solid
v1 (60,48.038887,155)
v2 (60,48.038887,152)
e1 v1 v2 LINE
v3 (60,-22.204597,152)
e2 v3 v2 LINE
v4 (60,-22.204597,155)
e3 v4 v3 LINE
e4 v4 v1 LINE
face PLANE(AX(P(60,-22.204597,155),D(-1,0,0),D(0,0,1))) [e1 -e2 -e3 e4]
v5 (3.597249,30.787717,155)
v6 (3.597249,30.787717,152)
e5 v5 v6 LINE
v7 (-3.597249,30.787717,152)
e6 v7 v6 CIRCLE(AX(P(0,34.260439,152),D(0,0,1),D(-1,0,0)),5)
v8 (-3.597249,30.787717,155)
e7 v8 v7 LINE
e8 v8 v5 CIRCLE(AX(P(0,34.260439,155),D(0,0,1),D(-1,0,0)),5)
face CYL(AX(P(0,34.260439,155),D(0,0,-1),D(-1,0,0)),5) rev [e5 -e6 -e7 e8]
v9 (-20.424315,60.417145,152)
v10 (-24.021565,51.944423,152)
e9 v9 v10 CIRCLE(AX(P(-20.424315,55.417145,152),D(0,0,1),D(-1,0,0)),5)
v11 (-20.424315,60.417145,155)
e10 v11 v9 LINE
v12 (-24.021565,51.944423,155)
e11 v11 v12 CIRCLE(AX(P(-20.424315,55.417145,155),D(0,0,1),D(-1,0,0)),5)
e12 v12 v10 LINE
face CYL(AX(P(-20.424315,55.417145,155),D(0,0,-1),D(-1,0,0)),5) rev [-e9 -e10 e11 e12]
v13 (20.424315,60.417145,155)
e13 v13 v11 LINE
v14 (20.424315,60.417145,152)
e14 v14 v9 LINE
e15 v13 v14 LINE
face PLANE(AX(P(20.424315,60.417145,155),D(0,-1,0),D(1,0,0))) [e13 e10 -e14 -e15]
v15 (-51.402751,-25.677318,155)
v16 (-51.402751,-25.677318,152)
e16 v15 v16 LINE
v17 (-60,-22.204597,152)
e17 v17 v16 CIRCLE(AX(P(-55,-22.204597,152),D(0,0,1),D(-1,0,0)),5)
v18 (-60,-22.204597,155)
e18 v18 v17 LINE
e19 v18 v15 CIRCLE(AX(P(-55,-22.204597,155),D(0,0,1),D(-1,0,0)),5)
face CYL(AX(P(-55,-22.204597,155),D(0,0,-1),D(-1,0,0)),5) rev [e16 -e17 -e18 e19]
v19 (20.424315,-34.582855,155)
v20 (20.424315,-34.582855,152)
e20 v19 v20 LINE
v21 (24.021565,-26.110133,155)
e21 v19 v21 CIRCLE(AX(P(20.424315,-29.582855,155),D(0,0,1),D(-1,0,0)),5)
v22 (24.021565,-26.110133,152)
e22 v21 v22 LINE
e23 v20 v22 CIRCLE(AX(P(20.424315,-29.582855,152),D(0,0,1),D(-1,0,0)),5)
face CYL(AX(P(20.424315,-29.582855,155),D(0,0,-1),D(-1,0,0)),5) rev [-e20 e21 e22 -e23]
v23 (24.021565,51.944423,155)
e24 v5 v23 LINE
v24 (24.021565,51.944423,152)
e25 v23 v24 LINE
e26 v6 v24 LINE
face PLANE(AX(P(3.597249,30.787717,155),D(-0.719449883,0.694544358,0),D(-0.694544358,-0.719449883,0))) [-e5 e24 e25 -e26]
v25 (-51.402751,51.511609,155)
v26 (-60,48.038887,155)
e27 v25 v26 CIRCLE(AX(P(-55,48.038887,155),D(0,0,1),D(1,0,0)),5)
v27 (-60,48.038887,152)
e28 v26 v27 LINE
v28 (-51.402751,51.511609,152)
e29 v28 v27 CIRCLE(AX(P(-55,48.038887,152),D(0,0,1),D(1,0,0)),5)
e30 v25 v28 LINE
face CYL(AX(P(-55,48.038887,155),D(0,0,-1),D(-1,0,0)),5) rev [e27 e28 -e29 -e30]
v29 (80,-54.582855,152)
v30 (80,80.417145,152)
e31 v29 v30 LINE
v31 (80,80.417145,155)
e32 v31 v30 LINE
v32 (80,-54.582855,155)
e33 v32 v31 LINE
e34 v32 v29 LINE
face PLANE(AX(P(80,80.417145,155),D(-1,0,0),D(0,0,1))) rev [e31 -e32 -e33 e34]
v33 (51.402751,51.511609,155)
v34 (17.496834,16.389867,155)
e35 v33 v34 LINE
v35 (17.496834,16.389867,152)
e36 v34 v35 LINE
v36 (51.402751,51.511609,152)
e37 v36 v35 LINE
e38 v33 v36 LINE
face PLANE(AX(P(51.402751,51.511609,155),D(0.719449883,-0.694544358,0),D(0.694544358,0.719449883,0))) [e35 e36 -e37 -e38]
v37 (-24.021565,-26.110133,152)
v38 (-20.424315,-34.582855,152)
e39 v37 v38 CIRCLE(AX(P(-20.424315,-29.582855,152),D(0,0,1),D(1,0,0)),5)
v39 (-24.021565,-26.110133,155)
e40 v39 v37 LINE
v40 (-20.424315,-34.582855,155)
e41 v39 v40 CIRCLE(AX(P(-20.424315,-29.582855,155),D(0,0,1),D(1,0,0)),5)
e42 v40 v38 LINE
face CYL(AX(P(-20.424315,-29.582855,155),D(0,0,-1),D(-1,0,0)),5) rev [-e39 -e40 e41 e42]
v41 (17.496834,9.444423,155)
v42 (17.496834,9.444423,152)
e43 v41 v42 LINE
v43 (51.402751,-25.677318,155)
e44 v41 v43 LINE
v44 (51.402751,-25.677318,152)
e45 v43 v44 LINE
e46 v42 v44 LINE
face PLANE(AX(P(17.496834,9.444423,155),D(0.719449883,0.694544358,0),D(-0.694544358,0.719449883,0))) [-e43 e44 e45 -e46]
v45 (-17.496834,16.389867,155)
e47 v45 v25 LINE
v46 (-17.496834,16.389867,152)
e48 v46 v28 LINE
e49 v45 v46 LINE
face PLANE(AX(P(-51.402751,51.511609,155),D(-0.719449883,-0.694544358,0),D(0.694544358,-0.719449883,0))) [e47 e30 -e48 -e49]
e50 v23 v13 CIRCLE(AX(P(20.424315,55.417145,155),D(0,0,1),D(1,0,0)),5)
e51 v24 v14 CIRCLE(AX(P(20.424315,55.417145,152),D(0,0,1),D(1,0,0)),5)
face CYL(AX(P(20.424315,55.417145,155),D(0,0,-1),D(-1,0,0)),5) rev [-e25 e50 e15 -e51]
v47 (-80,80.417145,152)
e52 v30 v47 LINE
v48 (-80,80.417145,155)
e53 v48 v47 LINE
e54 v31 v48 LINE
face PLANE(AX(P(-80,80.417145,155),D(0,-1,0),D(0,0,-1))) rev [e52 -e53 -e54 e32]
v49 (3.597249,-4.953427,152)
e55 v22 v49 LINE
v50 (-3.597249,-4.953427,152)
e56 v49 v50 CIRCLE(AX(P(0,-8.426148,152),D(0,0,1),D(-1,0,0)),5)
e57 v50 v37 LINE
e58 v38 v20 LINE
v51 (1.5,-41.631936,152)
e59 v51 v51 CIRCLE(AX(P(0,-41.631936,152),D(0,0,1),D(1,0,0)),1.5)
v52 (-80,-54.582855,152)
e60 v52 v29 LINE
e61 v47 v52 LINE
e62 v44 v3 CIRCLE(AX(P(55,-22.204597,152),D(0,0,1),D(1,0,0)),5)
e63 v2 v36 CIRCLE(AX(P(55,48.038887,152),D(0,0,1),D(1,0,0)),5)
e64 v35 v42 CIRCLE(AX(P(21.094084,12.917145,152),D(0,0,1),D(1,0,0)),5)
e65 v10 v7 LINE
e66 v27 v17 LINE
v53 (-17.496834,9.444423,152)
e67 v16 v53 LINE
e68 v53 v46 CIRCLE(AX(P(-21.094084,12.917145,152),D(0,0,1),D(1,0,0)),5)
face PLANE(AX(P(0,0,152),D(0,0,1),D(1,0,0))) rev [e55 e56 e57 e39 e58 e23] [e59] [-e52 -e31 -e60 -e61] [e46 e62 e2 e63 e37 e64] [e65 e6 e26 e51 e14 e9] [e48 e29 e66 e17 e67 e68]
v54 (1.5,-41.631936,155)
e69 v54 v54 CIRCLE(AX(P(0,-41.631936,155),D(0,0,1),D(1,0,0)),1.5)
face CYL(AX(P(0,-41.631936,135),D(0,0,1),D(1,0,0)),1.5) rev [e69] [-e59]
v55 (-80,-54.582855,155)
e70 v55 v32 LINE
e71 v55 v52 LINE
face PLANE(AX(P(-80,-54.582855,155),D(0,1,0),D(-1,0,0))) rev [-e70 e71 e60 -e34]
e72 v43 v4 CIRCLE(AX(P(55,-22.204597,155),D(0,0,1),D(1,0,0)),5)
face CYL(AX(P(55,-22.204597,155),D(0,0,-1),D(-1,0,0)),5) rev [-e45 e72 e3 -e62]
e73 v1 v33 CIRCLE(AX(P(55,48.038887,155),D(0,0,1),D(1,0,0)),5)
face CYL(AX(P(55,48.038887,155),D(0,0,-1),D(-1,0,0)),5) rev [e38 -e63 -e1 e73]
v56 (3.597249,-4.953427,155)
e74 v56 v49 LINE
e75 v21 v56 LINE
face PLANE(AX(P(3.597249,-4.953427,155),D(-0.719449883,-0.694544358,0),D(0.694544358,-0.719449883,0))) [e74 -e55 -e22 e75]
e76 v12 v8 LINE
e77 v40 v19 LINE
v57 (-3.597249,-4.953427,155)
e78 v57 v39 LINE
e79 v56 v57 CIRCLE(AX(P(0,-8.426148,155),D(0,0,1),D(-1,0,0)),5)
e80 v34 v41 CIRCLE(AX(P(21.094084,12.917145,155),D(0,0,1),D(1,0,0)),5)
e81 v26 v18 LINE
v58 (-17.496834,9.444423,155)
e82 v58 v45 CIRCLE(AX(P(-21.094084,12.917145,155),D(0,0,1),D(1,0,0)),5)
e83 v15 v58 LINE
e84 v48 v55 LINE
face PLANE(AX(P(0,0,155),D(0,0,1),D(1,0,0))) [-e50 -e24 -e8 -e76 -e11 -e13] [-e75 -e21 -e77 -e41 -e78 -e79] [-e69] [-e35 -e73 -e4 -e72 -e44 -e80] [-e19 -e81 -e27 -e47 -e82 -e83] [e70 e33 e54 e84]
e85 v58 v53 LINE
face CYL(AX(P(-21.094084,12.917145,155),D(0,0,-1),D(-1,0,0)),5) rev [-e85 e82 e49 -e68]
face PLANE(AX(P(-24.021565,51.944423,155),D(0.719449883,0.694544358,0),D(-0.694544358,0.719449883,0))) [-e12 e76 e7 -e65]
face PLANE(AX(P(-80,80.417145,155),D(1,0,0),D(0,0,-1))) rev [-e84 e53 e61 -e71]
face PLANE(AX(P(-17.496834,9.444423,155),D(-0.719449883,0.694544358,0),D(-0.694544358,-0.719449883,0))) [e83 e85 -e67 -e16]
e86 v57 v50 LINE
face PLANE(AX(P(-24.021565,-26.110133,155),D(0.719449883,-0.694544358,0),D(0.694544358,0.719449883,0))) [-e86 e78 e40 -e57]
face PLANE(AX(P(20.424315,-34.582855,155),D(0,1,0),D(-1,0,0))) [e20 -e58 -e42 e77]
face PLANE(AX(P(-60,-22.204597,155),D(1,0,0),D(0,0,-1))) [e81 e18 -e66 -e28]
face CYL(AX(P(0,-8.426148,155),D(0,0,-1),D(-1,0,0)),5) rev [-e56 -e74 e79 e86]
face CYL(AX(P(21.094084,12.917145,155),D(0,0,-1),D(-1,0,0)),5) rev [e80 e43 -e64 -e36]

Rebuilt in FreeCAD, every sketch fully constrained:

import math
import FreeCAD as App
import Part
import Sketcher
from FreeCAD import Vector
Q = App.Units.Quantity

doc = App.newDocument("Part")
params = doc.addObject("Spreadsheet::Sheet", "Params")
for row, (alias, value) in enumerate([
    ("sketch1_radius", "5 mm"),
    ("sketch1_width", "160 mm"),
    ("sketch1_height", "135 mm"),
    ("pad1_length", "3 mm"),
    ("sketch2_diameter", "3 mm"),
    ("pocket1_length", "20 mm"),
], start=1):
    params.set(f"A{row}", alias)
    params.set(f"B{row}", "=" + value)
    params.setAlias(f"B{row}", alias)

body = doc.addObject("PartDesign::Body", "Body")

# Sketch on XY plane
sketch1 = body.newObject("Sketcher::SketchObject", "Sketch")
sketch1.AttachmentSupport = (doc.getObject("XY_Plane"), [""])
sketch1.MapMode = "FlatFace"
sketch1.AttachmentOffset = App.Placement(Vector(0, 0, 152), App.Rotation())
sketch1.addGeometry(Part.LineSegment(Vector(-80, 80.417145, 0), Vector(-80, -54.582855, 0)), False)
sketch1.addGeometry(Part.LineSegment(Vector(-80, -54.582855, 0), Vector(80, -54.582855, 0)), False)
sketch1.addGeometry(Part.LineSegment(Vector(80, -54.582855, 0), Vector(80, 80.417145, 0)), False)
sketch1.addGeometry(Part.LineSegment(Vector(80, 80.417145, 0), Vector(-80, 80.417145, 0)), False)
sketch1.addGeometry(Part.ArcOfCircle(Part.Circle(Vector(-20.424315, -29.582855, 0), Vector(0, 0, 1), 5), math.radians(136.00908), math.radians(270)), False)
sketch1.addGeometry(Part.LineSegment(Vector(-24.021565, -26.110133, 0), Vector(-3.597249, -4.953427, 0)), False)
sketch1.addGeometry(Part.ArcOfCircle(Part.Circle(Vector(0, -8.426148, 0), Vector(0, 0, 1), 5), math.radians(43.99092), math.radians(136.00908)), False)
sketch1.addGeometry(Part.LineSegment(Vector(3.597249, -4.953427, 0), Vector(24.021565, -26.110133, 0)), False)
sketch1.addGeometry(Part.ArcOfCircle(Part.Circle(Vector(20.424315, -29.582855, 0), Vector(0, 0, 1), 5), math.radians(-90), math.radians(43.99092)), False)
sketch1.addGeometry(Part.LineSegment(Vector(20.424315, -34.582855, 0), Vector(-20.424315, -34.582855, 0)), False)
sketch1.addGeometry(Part.ArcOfCircle(Part.Circle(Vector(-55, -22.204597, 0), Vector(0, 0, 1), 5), math.radians(180), math.radians(316.00908)), False)
sketch1.addGeometry(Part.LineSegment(Vector(-60, -22.204597, 0), Vector(-60, 48.038887, 0)), False)
sketch1.addGeometry(Part.ArcOfCircle(Part.Circle(Vector(-55, 48.038887, 0), Vector(0, 0, 1), 5), math.radians(43.99092), math.radians(180)), False)
sketch1.addGeometry(Part.LineSegment(Vector(-51.402751, 51.511609, 0), Vector(-17.496834, 16.389867, 0)), False)
sketch1.addGeometry(Part.ArcOfCircle(Part.Circle(Vector(-21.094084, 12.917145, 0), Vector(0, 0, 1), 5), math.radians(-43.99092), math.radians(43.99092)), False)
sketch1.addGeometry(Part.LineSegment(Vector(-17.496834, 9.444423, 0), Vector(-51.402751, -25.677318, 0)), False)
sketch1.addGeometry(Part.LineSegment(Vector(-20.424315, 60.417145, 0), Vector(20.424315, 60.417145, 0)), False)
sketch1.addGeometry(Part.ArcOfCircle(Part.Circle(Vector(20.424315, 55.417145, 0), Vector(0, 0, 1), 5), math.radians(-43.99092), math.radians(90)), False)
sketch1.addGeometry(Part.LineSegment(Vector(24.021565, 51.944423, 0), Vector(3.597249, 30.787717, 0)), False)
sketch1.addGeometry(Part.ArcOfCircle(Part.Circle(Vector(0, 34.260439, 0), Vector(0, 0, 1), 5), math.radians(-136.00908), math.radians(-43.99092)), False)
sketch1.addGeometry(Part.LineSegment(Vector(-3.597249, 30.787717, 0), Vector(-24.021565, 51.944423, 0)), False)
sketch1.addGeometry(Part.ArcOfCircle(Part.Circle(Vector(-20.424315, 55.417145, 0), Vector(0, 0, 1), 5), math.radians(90), math.radians(223.99092)), False)
sketch1.addGeometry(Part.LineSegment(Vector(17.496834, 16.389867, 0), Vector(51.402751, 51.511609, 0)), False)
sketch1.addGeometry(Part.ArcOfCircle(Part.Circle(Vector(55, 48.038887, 0), Vector(0, 0, 1), 5), math.radians(0), math.radians(136.00908)), False)
sketch1.addGeometry(Part.LineSegment(Vector(60, 48.038887, 0), Vector(60, -22.204597, 0)), False)
sketch1.addGeometry(Part.ArcOfCircle(Part.Circle(Vector(55, -22.204597, 0), Vector(0, 0, 1), 5), math.radians(-136.00908), math.radians(0)), False)
sketch1.addGeometry(Part.LineSegment(Vector(51.402751, -25.677318, 0), Vector(17.496834, 9.444423, 0)), False)
sketch1.addGeometry(Part.ArcOfCircle(Part.Circle(Vector(21.094084, 12.917145, 0), Vector(0, 0, 1), 5), math.radians(136.00908), math.radians(223.99092)), False)
sketch1.addConstraint(Sketcher.Constraint("Coincident", 0, 2, 1, 1))
sketch1.addConstraint(Sketcher.Constraint("Coincident", 1, 2, 2, 1))
sketch1.addConstraint(Sketcher.Constraint("Coincident", 2, 2, 3, 1))
sketch1.addConstraint(Sketcher.Constraint("Coincident", 3, 2, 0, 1))
sketch1.addConstraint(Sketcher.Constraint("Tangent", 4, 1, 5, 1))
sketch1.addConstraint(Sketcher.Constraint("Tangent", 5, 2, 6, 2))
sketch1.addConstraint(Sketcher.Constraint("Tangent", 6, 1, 7, 1))
sketch1.addConstraint(Sketcher.Constraint("Tangent", 7, 2, 8, 2))
sketch1.addConstraint(Sketcher.Constraint("Tangent", 8, 1, 9, 1))
sketch1.addConstraint(Sketcher.Constraint("Tangent", 9, 2, 4, 2))
sketch1.addConstraint(Sketcher.Constraint("Tangent", 10, 1, 11, 1))
sketch1.addConstraint(Sketcher.Constraint("Tangent", 11, 2, 12, 2))
sketch1.addConstraint(Sketcher.Constraint("Tangent", 12, 1, 13, 1))
sketch1.addConstraint(Sketcher.Constraint("Tangent", 13, 2, 14, 2))
sketch1.addConstraint(Sketcher.Constraint("Tangent", 14, 1, 15, 1))
sketch1.addConstraint(Sketcher.Constraint("Tangent", 15, 2, 10, 2))
sketch1.addConstraint(Sketcher.Constraint("Tangent", 16, 2, 17, 2))
sketch1.addConstraint(Sketcher.Constraint("Tangent", 17, 1, 18, 1))
sketch1.addConstraint(Sketcher.Constraint("Tangent", 18, 2, 19, 2))
sketch1.addConstraint(Sketcher.Constraint("Tangent", 19, 1, 20, 1))
sketch1.addConstraint(Sketcher.Constraint("Tangent", 20, 2, 21, 2))
sketch1.addConstraint(Sketcher.Constraint("Tangent", 21, 1, 16, 1))
sketch1.addConstraint(Sketcher.Constraint("Tangent", 22, 2, 23, 2))
sketch1.addConstraint(Sketcher.Constraint("Tangent", 23, 1, 24, 1))
sketch1.addConstraint(Sketcher.Constraint("Tangent", 24, 2, 25, 2))
sketch1.addConstraint(Sketcher.Constraint("Tangent", 25, 1, 26, 1))
sketch1.addConstraint(Sketcher.Constraint("Tangent", 26, 2, 27, 2))
sketch1.addConstraint(Sketcher.Constraint("Tangent", 27, 1, 22, 1))
sketch1.addConstraint(Sketcher.Constraint("Vertical", 0))
sketch1.addConstraint(Sketcher.Constraint("Horizontal", 1))
sketch1.addConstraint(Sketcher.Constraint("Vertical", 2))
sketch1.addConstraint(Sketcher.Constraint("Horizontal", 3))
sketch1.addConstraint(Sketcher.Constraint("Horizontal", 9))
sketch1.addConstraint(Sketcher.Constraint("Vertical", 11))
sketch1.addConstraint(Sketcher.Constraint("Horizontal", 16))
sketch1.addConstraint(Sketcher.Constraint("Vertical", 24))
sketch1.addConstraint(Sketcher.Constraint("Equal", 4, 6))
sketch1.addConstraint(Sketcher.Constraint("Equal", 6, 8))
sketch1.addConstraint(Sketcher.Constraint("Equal", 8, 10))
sketch1.addConstraint(Sketcher.Constraint("Equal", 10, 12))
sketch1.addConstraint(Sketcher.Constraint("Equal", 12, 14))
sketch1.addConstraint(Sketcher.Constraint("Equal", 14, 17))
sketch1.addConstraint(Sketcher.Constraint("Equal", 17, 19))
sketch1.addConstraint(Sketcher.Constraint("Equal", 19, 21))
sketch1.addConstraint(Sketcher.Constraint("Equal", 21, 23))
sketch1.addConstraint(Sketcher.Constraint("Equal", 23, 25))
sketch1.addConstraint(Sketcher.Constraint("Equal", 25, 27))
sketch1.addConstraint(Sketcher.Constraint("Symmetric", 12, 3, 23, 3, -2))
sketch1.addConstraint(Sketcher.Constraint("Symmetric", 14, 3, 27, 3, -2))
sketch1.addConstraint(Sketcher.Constraint("Symmetric", 5, 2, 6, 1, -2))
sketch1.addConstraint(Sketcher.Constraint("Symmetric", 18, 2, 19, 1, -2))
sketch1.addConstraint(Sketcher.Constraint("Parallel", 7, 13))
sketch1.addConstraint(Sketcher.Constraint("Parallel", 5, 15))
sketch1.addConstraint(Sketcher.Constraint("Parallel", 15, 18))
sketch1.addConstraint(Sketcher.Constraint("Parallel", 20, 26))
sketch1.addConstraint(Sketcher.Constraint("Vertical", 8, 3, 17, 3))
sketch1.addConstraint(Sketcher.Constraint("Radius", 4, Q("5 mm")))
sketch1.addConstraint(Sketcher.Constraint("DistanceX", 1, 1, 1, 2, Q("160 mm")))
sketch1.addConstraint(Sketcher.Constraint("DistanceY", 0, 2, 0, 1, Q("135 mm")))
sketch1.addConstraint(Sketcher.Constraint("DistanceX", 10, 3, -1, 1, Q("55 mm")))
sketch1.addConstraint(Sketcher.Constraint("DistanceX", 0, 2, -1, 1, Q("80 mm")))
sketch1.addConstraint(Sketcher.Constraint("DistanceY", 8, 3, 17, 3, Q("85 mm")))
sketch1.addConstraint(Sketcher.Constraint("DistanceY", 0, 2, 4, 3, Q("25 mm")))
sketch1.addConstraint(Sketcher.Constraint("DistanceY", 4, 3, 14, 3, Q("42.5 mm")))
sketch1.addConstraint(Sketcher.Constraint("DistanceX", 9, 2, 9, 1, Q("40.84863 mm")))
sketch1.addConstraint(Sketcher.Constraint("DistanceX", 14, 3, 8, 3, Q("41.518399 mm")))
sketch1.addConstraint(Sketcher.Constraint("DistanceX", 5, 2, 6, 1, Q("7.194499 mm")))
sketch1.addConstraint(Sketcher.Constraint("DistanceY", 6, 3, -1, 1, Q("8.426148 mm")))
sketch1.setExpression("Constraints[56]", "Params.sketch1_radius")
sketch1.setExpression("Constraints[57]", "Params.sketch1_width")
sketch1.setExpression("Constraints[58]", "Params.sketch1_height")
pad1 = body.newObject("PartDesign::Pad", "Pad")
pad1.Profile = sketch1
pad1.setExpression("Length", "Params.pad1_length")

# Sketch on XY plane
sketch2 = body.newObject("Sketcher::SketchObject", "Sketch001")
sketch2.AttachmentSupport = (doc.getObject("XY_Plane"), [""])
sketch2.MapMode = "FlatFace"
sketch2.AttachmentOffset = App.Placement(Vector(0, 0, 155), App.Rotation())
sketch2.addGeometry(Part.Circle(Vector(0, -41.631936, 0), Vector(0, 0, 1), 1.5), False)
sketch2.addConstraint(Sketcher.Constraint("PointOnObject", 0, 3, -2))
sketch2.addConstraint(Sketcher.Constraint("Diameter", 0, Q("3 mm")))
sketch2.addConstraint(Sketcher.Constraint("DistanceY", 0, 3, -1, 1, Q("41.631936 mm")))
sketch2.setExpression("Constraints[1]", "Params.sketch2_diameter")
pocket1 = body.newObject("PartDesign::Pocket", "Pocket")
pocket1.Profile = sketch2
pocket1.setExpression("Length", "Params.pocket1_length")

doc.recompute()
